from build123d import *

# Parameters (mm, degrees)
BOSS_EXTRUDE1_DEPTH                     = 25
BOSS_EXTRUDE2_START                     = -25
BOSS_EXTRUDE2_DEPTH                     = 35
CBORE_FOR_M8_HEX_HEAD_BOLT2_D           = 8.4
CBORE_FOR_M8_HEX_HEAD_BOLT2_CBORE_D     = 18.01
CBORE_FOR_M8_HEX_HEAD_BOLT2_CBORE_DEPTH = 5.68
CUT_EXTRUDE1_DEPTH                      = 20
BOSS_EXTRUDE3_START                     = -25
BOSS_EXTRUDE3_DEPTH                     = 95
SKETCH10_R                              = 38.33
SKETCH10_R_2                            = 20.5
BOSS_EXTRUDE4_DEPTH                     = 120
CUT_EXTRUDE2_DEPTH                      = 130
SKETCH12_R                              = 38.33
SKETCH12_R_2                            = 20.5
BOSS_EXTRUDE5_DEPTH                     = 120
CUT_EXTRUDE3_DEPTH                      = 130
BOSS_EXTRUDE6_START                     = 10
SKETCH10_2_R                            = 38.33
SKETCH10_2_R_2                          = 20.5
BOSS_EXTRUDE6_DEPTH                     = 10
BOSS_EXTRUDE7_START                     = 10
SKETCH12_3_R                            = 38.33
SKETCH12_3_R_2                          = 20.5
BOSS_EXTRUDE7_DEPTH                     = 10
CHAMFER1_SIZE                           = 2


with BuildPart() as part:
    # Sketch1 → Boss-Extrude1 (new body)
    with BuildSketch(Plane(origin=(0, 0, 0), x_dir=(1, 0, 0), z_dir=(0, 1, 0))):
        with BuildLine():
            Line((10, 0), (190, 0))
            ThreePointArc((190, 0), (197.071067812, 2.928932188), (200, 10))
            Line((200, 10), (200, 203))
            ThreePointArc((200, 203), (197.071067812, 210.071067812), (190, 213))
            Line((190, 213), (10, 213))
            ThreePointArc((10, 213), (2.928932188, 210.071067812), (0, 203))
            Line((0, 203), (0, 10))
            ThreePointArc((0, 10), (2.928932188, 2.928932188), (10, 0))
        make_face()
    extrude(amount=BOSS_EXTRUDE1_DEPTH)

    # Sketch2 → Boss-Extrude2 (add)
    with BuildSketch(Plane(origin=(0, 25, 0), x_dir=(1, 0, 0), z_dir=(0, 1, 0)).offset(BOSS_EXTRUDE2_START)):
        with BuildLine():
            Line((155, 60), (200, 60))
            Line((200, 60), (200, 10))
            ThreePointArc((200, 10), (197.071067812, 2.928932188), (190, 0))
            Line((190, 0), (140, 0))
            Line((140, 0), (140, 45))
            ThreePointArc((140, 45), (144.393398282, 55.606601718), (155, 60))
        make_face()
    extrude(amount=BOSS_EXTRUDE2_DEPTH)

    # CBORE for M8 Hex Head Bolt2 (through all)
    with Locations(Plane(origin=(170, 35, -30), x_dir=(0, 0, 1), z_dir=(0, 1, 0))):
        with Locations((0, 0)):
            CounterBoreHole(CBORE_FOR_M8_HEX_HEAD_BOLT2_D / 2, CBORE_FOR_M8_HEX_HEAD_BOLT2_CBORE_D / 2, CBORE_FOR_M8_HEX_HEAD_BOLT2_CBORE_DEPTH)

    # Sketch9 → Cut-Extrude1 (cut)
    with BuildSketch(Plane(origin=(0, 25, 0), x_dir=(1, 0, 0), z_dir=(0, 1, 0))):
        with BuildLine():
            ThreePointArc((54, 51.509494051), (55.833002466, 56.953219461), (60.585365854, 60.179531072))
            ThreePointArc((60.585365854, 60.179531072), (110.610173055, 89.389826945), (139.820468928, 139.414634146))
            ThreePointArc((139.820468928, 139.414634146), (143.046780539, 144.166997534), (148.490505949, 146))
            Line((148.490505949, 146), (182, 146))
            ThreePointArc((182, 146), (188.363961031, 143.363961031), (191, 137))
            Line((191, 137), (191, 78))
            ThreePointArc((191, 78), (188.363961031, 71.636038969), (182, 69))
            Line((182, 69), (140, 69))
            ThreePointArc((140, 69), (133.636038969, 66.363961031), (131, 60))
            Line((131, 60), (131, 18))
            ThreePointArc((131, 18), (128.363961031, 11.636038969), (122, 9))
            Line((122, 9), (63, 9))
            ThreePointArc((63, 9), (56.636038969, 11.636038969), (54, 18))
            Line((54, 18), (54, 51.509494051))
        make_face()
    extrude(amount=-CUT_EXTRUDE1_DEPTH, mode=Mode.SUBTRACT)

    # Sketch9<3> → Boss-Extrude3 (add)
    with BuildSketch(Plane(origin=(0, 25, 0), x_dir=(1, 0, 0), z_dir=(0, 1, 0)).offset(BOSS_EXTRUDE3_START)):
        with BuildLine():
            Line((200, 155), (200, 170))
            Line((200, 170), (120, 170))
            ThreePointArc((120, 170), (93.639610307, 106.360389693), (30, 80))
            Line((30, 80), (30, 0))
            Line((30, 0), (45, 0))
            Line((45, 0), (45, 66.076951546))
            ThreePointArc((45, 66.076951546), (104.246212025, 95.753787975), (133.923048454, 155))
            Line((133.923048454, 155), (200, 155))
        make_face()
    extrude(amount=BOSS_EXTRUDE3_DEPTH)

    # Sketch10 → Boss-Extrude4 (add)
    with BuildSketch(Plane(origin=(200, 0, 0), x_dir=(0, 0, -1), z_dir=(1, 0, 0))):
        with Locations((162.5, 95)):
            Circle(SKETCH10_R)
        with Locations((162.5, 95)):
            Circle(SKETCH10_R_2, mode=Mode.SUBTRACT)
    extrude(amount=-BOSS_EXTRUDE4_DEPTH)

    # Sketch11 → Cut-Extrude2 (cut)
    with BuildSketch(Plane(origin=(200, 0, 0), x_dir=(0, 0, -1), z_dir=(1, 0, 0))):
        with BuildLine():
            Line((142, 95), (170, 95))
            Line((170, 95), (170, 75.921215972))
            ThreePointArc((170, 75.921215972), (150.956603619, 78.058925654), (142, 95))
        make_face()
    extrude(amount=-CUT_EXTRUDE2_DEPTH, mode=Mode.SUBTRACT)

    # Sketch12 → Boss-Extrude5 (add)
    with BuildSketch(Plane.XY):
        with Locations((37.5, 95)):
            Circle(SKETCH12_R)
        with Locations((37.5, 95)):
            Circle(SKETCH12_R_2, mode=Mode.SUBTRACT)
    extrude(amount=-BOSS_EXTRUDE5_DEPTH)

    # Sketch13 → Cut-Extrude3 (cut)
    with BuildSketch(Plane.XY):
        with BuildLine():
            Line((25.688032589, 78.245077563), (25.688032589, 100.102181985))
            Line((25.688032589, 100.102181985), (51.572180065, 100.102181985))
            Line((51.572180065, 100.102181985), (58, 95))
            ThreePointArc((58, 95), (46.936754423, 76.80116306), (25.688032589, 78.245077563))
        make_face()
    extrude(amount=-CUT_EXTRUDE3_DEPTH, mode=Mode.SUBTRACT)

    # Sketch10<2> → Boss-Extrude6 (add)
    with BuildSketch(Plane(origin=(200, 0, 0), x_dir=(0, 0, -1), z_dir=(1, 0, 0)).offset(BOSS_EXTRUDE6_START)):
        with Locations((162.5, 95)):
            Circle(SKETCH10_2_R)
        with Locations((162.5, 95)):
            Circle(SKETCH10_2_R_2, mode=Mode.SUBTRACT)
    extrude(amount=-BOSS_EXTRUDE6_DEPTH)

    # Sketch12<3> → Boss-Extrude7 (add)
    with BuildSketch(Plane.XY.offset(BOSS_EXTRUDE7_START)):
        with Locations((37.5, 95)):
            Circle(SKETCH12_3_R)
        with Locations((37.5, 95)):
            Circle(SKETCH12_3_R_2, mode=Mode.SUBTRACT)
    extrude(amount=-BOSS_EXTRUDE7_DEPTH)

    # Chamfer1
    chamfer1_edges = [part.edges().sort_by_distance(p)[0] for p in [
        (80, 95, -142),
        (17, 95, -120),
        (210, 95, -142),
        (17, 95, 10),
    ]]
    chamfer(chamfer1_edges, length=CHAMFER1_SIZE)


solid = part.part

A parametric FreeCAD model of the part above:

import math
import FreeCAD as App
import Part
import Sketcher


def edges_at(feature, points):
    """Names of the edges that pass closest to the given points."""
    edges = feature.Shape.Edges
    near = lambda p: min(range(len(edges)), key=lambda i: edges[i].distToShape(Part.Vertex(*p))[0])
    return sorted({f"Edge{near(p) + 1}" for p in points})

doc = App.newDocument("Part")
body = doc.addObject("PartDesign::Body", "Body")

sketch1 = body.newObject("Sketcher::SketchObject", "Sketch")
sketch1.AttachmentSupport = (doc.getObject("XZ_Plane"), [""])
sketch1.MapMode = "FlatFace"
sketch1.addGeometry([
    Part.LineSegment(App.Vector(10, 0, 0), App.Vector(190, 0, 0)),
    Part.ArcOfCircle(Part.Circle(App.Vector(190, -10, 0), App.Vector(0, 0, 1), 10), math.radians(0), math.radians(90)),
    Part.LineSegment(App.Vector(200, -10, 0), App.Vector(200, -203, 0)),
    Part.ArcOfCircle(Part.Circle(App.Vector(190, -203, 0), App.Vector(0, 0, 1), 10), math.radians(-90), math.radians(0)),
    Part.LineSegment(App.Vector(190, -213, 0), App.Vector(10, -213, 0)),
    Part.ArcOfCircle(Part.Circle(App.Vector(10, -203, 0), App.Vector(0, 0, 1), 10), math.radians(180), math.radians(270)),
    Part.LineSegment(App.Vector(0, -203, 0), App.Vector(0, -10, 0)),
    Part.ArcOfCircle(Part.Circle(App.Vector(10, -10, 0), App.Vector(0, 0, 1), 10), math.radians(90), math.radians(180)),
], False)
sketch1.addConstraint([
    Sketcher.Constraint("Tangent", 0, 2, 1, 2),
    Sketcher.Constraint("Tangent", 1, 1, 2, 1),
    Sketcher.Constraint("Tangent", 2, 2, 3, 2),
    Sketcher.Constraint("Tangent", 3, 1, 4, 1),
    Sketcher.Constraint("Tangent", 4, 2, 5, 2),
    Sketcher.Constraint("Tangent", 5, 1, 6, 1),
    Sketcher.Constraint("Tangent", 6, 2, 7, 2),
    Sketcher.Constraint("Tangent", 7, 1, 0, 1),
    Sketcher.Constraint("Horizontal", 0),
    Sketcher.Constraint("Vertical", 2),
    Sketcher.Constraint("Horizontal", 4),
    Sketcher.Constraint("Vertical", 6),
    Sketcher.Constraint("Equal", 1, 3),
    Sketcher.Constraint("Equal", 3, 5),
    Sketcher.Constraint("Equal", 5, 7),
    Sketcher.Constraint("PointOnObject", 0, 2, -1),
    Sketcher.Constraint("PointOnObject", 5, 1, -2),
    Sketcher.Constraint("Radius", 1, 10.0),
    Sketcher.Constraint("DistanceX", 0, 1, 0, 2, 180.0),
    Sketcher.Constraint("DistanceY", 2, 2, 2, 1, 193.0),
])
pad1 = body.newObject("PartDesign::Pad", "Pad")
pad1.Profile = sketch1
pad1.Length = 25
pad1.Reversed = True

sketch2 = body.newObject("Sketcher::SketchObject", "Sketch001")
sketch2.AttachmentSupport = (doc.getObject("XZ_Plane"), [""])
sketch2.MapMode = "FlatFace"
sketch2.addGeometry([
    Part.LineSegment(App.Vector(200, -60, 0), App.Vector(155, -60, 0)),
    Part.ArcOfCircle(Part.Circle(App.Vector(155, -45, 0), App.Vector(0, 0, 1), 15), math.radians(180), math.radians(270)),
    Part.LineSegment(App.Vector(140, -45, 0), App.Vector(140, 0, 0)),
    Part.LineSegment(App.Vector(140, 0, 0), App.Vector(190, 0, 0)),
    Part.ArcOfCircle(Part.Circle(App.Vector(190, -10, 0), App.Vector(0, 0, 1), 10), math.radians(0), math.radians(90)),
    Part.LineSegment(App.Vector(200, -10, 0), App.Vector(200, -60, 0)),
], False)
sketch2.addConstraint([
    Sketcher.Constraint("Tangent", 0, 2, 1, 2),
    Sketcher.Constraint("Tangent", 1, 1, 2, 1),
    Sketcher.Constraint("Coincident", 2, 2, 3, 1),
    Sketcher.Constraint("Tangent", 3, 2, 4, 2),
    Sketcher.Constraint("Tangent", 4, 1, 5, 1),
    Sketcher.Constraint("Coincident", 5, 2, 0, 1),
    Sketcher.Constraint("Horizontal", 0),
    Sketcher.Constraint("Vertical", 2),
    Sketcher.Constraint("Horizontal", 3),
    Sketcher.Constraint("Vertical", 5),
    Sketcher.Constraint("PointOnObject", 2, 2, -1),
    Sketcher.Constraint("Equal", 0, 2),
    Sketcher.Constraint("Radius", 1, 15.0),
    Sketcher.Constraint("Radius", 4, 10.0),
    Sketcher.Constraint("DistanceX", 0, 2, 0, 1, 45.0),
    Sketcher.Constraint("DistanceX", -1, 1, 1, 3, 155.0),
])
pad2 = body.newObject("PartDesign::Pad", "Pad001")
pad2.Profile = sketch2
pad2.Length = 35
pad2.Reversed = True

sketch3 = body.newObject("Sketcher::SketchObject", "Sketch002")
sketch3.AttachmentSupport = (doc.getObject("XZ_Plane"), [""])
sketch3.MapMode = "FlatFace"
sketch3.AttachmentOffset = App.Placement(App.Vector(0, 0, -35), App.Rotation())
sketch3.addGeometry(Part.Circle(App.Vector(170, -30, 0), App.Vector(0, 0, 1), 4.2), False)
sketch3.addConstraint([
    Sketcher.Constraint("Diameter", 0, 8.4),
    Sketcher.Constraint("DistanceX", -1, 1, 0, 3, 170.0),
    Sketcher.Constraint("DistanceY", 0, 3, -1, 1, 30.0),
])
doc.recompute()
hole = body.newObject("PartDesign::Hole", "Hole")
hole.Profile = sketch3
hole.ThreadType = "None"
hole.Diameter = 8.4
hole.DepthType = "ThroughAll"
hole.HoleCutType = "Counterbore"
hole.HoleCutDiameter = 18.01
hole.HoleCutDepth = 5.68
hole.Reversed = True

sketch4 = body.newObject("Sketcher::SketchObject", "Sketch003")
sketch4.AttachmentSupport = (doc.getObject("XZ_Plane"), [""])
sketch4.MapMode = "FlatFace"
sketch4.AttachmentOffset = App.Placement(App.Vector(0, 0, -25), App.Rotation())
sketch4.addGeometry([
    Part.ArcOfCircle(Part.Circle(App.Vector(63, -51.509494, 0), App.Vector(0, 0, 1), 9), math.radians(-180), math.radians(-105.562697)),
    Part.LineSegment(App.Vector(54, -51.509494, 0), App.Vector(54, -18, 0)),
    Part.ArcOfCircle(Part.Circle(App.Vector(63, -18, 0), App.Vector(0, 0, 1), 9), math.radians(90), math.radians(180)),
    Part.LineSegment(App.Vector(63, -9, 0), App.Vector(122, -9, 0)),
    Part.ArcOfCircle(Part.Circle(App.Vector(122, -18, 0), App.Vector(0, 0, 1), 9), math.radians(0), math.radians(90)),
    Part.LineSegment(App.Vector(131, -18, 0), App.Vector(131, -60, 0)),
    Part.ArcOfCircle(Part.Circle(App.Vector(140, -60, 0), App.Vector(0, 0, 1), 9), math.radians(180), math.radians(270)),
    Part.LineSegment(App.Vector(140, -69, 0), App.Vector(182, -69, 0)),
    Part.ArcOfCircle(Part.Circle(App.Vector(182, -78, 0), App.Vector(0, 0, 1), 9), math.radians(0), math.radians(90)),
    Part.LineSegment(App.Vector(191, -78, 0), App.Vector(191, -137, 0)),
    Part.ArcOfCircle(Part.Circle(App.Vector(182, -137, 0), App.Vector(0, 0, 1), 9), math.radians(-90), math.radians(0)),
    Part.LineSegment(App.Vector(182, -146, 0), App.Vector(148.490506, -146, 0)),
    Part.ArcOfCircle(Part.Circle(App.Vector(148.490506, -137, 0), App.Vector(0, 0, 1), 9), math.radians(-164.437303), math.radians(-90)),
    Part.ArcOfCircle(Part.Circle(App.Vector(30, -170, 0), App.Vector(0, 0, 1), 114), math.radians(15.562697), math.radians(74.437303)),
], False)
sketch4.addConstraint([
    Sketcher.Constraint("Tangent", 0, 1, 1, 1),
    Sketcher.Constraint("Tangent", 1, 2, 2, 2),
    Sketcher.Constraint("Tangent", 2, 1, 3, 1),
    Sketcher.Constraint("Tangent", 3, 2, 4, 2),
    Sketcher.Constraint("Tangent", 4, 1, 5, 1),
    Sketcher.Constraint("Tangent", 5, 2, 6, 1),
    Sketcher.Constraint("Tangent", 6, 2, 7, 1),
    Sketcher.Constraint("Tangent", 7, 2, 8, 2),
    Sketcher.Constraint("Tangent", 8, 1, 9, 1),
    Sketcher.Constraint("Tangent", 9, 2, 10, 2),
    Sketcher.Constraint("Tangent", 10, 1, 11, 1),
    Sketcher.Constraint("Tangent", 11, 2, 12, 2),
    Sketcher.Constraint("Tangent", 12, 1, 13, 1),
    Sketcher.Constraint("Tangent", 13, 2, 0, 2),
    Sketcher.Constraint("Vertical", 1),
    Sketcher.Constraint("Horizontal", 3),
    Sketcher.Constraint("Vertical", 5),
    Sketcher.Constraint("Horizontal", 7),
    Sketcher.Constraint("Vertical", 9),
    Sketcher.Constraint("Horizontal", 11),
    Sketcher.Constraint("Equal", 0, 2),
    Sketcher.Constraint("Equal", 2, 4),
    Sketcher.Constraint("Equal", 4, 6),
    Sketcher.Constraint("Equal", 6, 8),
    Sketcher.Constraint("Equal", 8, 10),
    Sketcher.Constraint("Equal", 10, 12),
    Sketcher.Constraint("Equal", 11, 1),
    Sketcher.Constraint("Equal", 7, 5),
    Sketcher.Constraint("Equal", 3, 9),
    Sketcher.Constraint("Radius", 0, 9.0),
    Sketcher.Constraint("Radius", 13, 114.0),
    Sketcher.Constraint("DistanceX", 3, 1, 3, 2, 59.0),
    Sketcher.Constraint("DistanceX", 7, 1, 7, 2, 42.0),
    Sketcher.Constraint("DistanceX", -1, 1, 0, 3, 63.0),
    Sketcher.Constraint("DistanceY", 2, 3, -1, 1, 18.0),
    Sketcher.Constraint("DistanceX", -1, 1, 13, 3, 30.0),
])
pocket1 = body.newObject("PartDesign::Pocket", "Pocket")
pocket1.Profile = sketch4
pocket1.Length = 20
pocket1.Reversed = True

sketch5 = body.newObject("Sketcher::SketchObject", "Sketch004")
sketch5.AttachmentSupport = (doc.getObject("XZ_Plane"), [""])
sketch5.MapMode = "FlatFace"
sketch5.addGeometry([
    Part.LineSegment(App.Vector(200, -155, 0), App.Vector(200, -170, 0)),
    Part.LineSegment(App.Vector(200, -170, 0), App.Vector(120, -170, 0)),
    Part.ArcOfCircle(Part.Circle(App.Vector(30, -170, 0), App.Vector(0, 0, 1), 90), math.radians(0), math.radians(90)),
    Part.LineSegment(App.Vector(30, -80, 0), App.Vector(30, 0, 0)),
    Part.LineSegment(App.Vector(30, 0, 0), App.Vector(45, 0, 0)),
    Part.LineSegment(App.Vector(45, 0, 0), App.Vector(45, -66.076952, 0)),
    Part.ArcOfCircle(Part.Circle(App.Vector(30, -170, 0), App.Vector(0, 0, 1), 105), math.radians(8.213211), math.radians(81.786789)),
    Part.LineSegment(App.Vector(133.923048, -155, 0), App.Vector(200, -155, 0)),
], False)
sketch5.addConstraint([
    Sketcher.Constraint("Coincident", 0, 2, 1, 1),
    Sketcher.Constraint("Coincident", 1, 2, 2, 1),
    Sketcher.Constraint("Coincident", 2, 2, 3, 1),
    Sketcher.Constraint("Coincident", 3, 2, 4, 1),
    Sketcher.Constraint("Coincident", 4, 2, 5, 1),
    Sketcher.Constraint("Coincident", 5, 2, 6, 2),
    Sketcher.Constraint("Coincident", 6, 1, 7, 1),
    Sketcher.Constraint("Coincident", 7, 2, 0, 1),
    Sketcher.Constraint("Vertical", 0),
    Sketcher.Constraint("Horizontal", 1),
    Sketcher.Constraint("Vertical", 3),
    Sketcher.Constraint("Horizontal", 4),
    Sketcher.Constraint("Vertical", 5),
    Sketcher.Constraint("Horizontal", 7),
    Sketcher.Constraint("Coincident", 6, 3, 2, 3),
    Sketcher.Constraint("PointOnObject", 3, 2, -1),
    Sketcher.Constraint("Horizontal", 6, 3, 0, 2),
    Sketcher.Constraint("Vertical", 6, 3, 2, 2),
    Sketcher.Constraint("Equal", 4, 0),
    Sketcher.Constraint("Equal", 1, 3),
    Sketcher.Constraint("Radius", 2, 90.0),
    Sketcher.Constraint("Radius", 6, 105.0),
    Sketcher.Constraint("DistanceX", 1, 2, 1, 1, 80.0),
    Sketcher.Constraint("DistanceX", 4, 1, 4, 2, 15.0),
    Sketcher.Constraint("DistanceX", -1, 1, 2, 3, 30.0),
])
pad3 = body.newObject("PartDesign::Pad", "Pad002")
pad3.Profile = sketch5
pad3.Length = 95
pad3.Reversed = True

sketch6 = body.newObject("Sketcher::SketchObject", "Sketch005")
sketch6.AttachmentSupport = (doc.getObject("YZ_Plane"), [""])
sketch6.MapMode = "FlatFace"
sketch6.AttachmentOffset = App.Placement(App.Vector(0, 0, 200), App.Rotation())
sketch6.addGeometry([
    Part.Circle(App.Vector(95, -162.5, 0), App.Vector(0, 0, 1), 38.33),
    Part.Circle(App.Vector(95, -162.5, 0), App.Vector(0, 0, 1), 20.5),
], False)
sketch6.addConstraint([
    Sketcher.Constraint("Coincident", 1, 3, 0, 3),
    Sketcher.Constraint("Diameter", 1, 41.0),
    Sketcher.Constraint("Diameter", 0, 76.66),
    Sketcher.Constraint("DistanceX", -1, 1, 0, 3, 95.0),
    Sketcher.Constraint("DistanceY", 0, 3, -1, 1, 162.5),
])
pad4 = body.newObject("PartDesign::Pad", "Pad003")
pad4.Profile = sketch6
pad4.Length = 120
pad4.Reversed = True

sketch7 = body.newObject("Sketcher::SketchObject", "Sketch006")
sketch7.AttachmentSupport = (doc.getObject("YZ_Plane"), [""])
sketch7.MapMode = "FlatFace"
sketch7.AttachmentOffset = App.Placement(App.Vector(0, 0, 200), App.Rotation())
sketch7.addGeometry([
    Part.LineSegment(App.Vector(95, -170, 0), App.Vector(95, -142, 0)),
    Part.ArcOfCircle(Part.Circle(App.Vector(95, -162.5, 0), App.Vector(0, 0, 1), 20.5), math.radians(90), math.radians(201.460128)),
    Part.LineSegment(App.Vector(75.921216, -170, 0), App.Vector(95, -170, 0)),
], False)
sketch7.addConstraint([
    Sketcher.Constraint("Coincident", 0, 2, 1, 1),
    Sketcher.Constraint("Coincident", 1, 2, 2, 1),
    Sketcher.Constraint("Coincident", 2, 2, 0, 1),
    Sketcher.Constraint("Vertical", 0),
    Sketcher.Constraint("Horizontal", 2),
    Sketcher.Constraint("Vertical", 1, 3, 0, 2),
    Sketcher.Constraint("Radius", 1, 20.5),
    Sketcher.Constraint("DistanceY", 0, 1, 0, 2, 28.0),
    Sketcher.Constraint("DistanceX", -1, 1, 1, 3, 95.0),
    Sketcher.Constraint("DistanceY", 0, 2, -1, 1, 142.0),
])
pocket2 = body.newObject("PartDesign::Pocket", "Pocket001")
pocket2.Profile = sketch7
pocket2.Length = 130

sketch8 = body.newObject("Sketcher::SketchObject", "Sketch007")
sketch8.AttachmentSupport = (doc.getObject("XY_Plane"), [""])
sketch8.MapMode = "FlatFace"
sketch8.addGeometry([
    Part.Circle(App.Vector(37.5, 95, 0), App.Vector(0, 0, 1), 38.33),
    Part.Circle(App.Vector(37.5, 95, 0), App.Vector(0, 0, 1), 20.5),
], False)
sketch8.addConstraint([
    Sketcher.Constraint("Coincident", 1, 3, 0, 3),
    Sketcher.Constraint("Diameter", 1, 41.0),
    Sketcher.Constraint("Diameter", 0, 76.66),
    Sketcher.Constraint("DistanceY", -1, 1, 0, 3, 95.0),
    Sketcher.Constraint("DistanceX", -1, 1, 0, 3, 37.5),
])
pad5 = body.newObject("PartDesign::Pad", "Pad004")
pad5.Profile = sketch8
pad5.Length = 120
pad5.Reversed = True

sketch9 = body.newObject("Sketcher::SketchObject", "Sketch008")
sketch9.AttachmentSupport = (doc.getObject("XY_Plane"), [""])
sketch9.MapMode = "FlatFace"
sketch9.addGeometry([
    Part.LineSegment(App.Vector(25.688033, 100.102182, 0), App.Vector(25.688033, 78.245078, 0)),
    Part.ArcOfCircle(Part.Circle(App.Vector(37.5, 95, 0), App.Vector(0, 0, 1), 20.5), math.radians(-125.183259), math.radians(0)),
    Part.LineSegment(App.Vector(58, 95, 0), App.Vector(51.57218, 100.102182, 0)),
    Part.LineSegment(App.Vector(51.57218, 100.102182, 0), App.Vector(25.688033, 100.102182, 0)),
], False)
sketch9.addConstraint([
    Sketcher.Constraint("Coincident", 0, 2, 1, 1),
    Sketcher.Constraint("Coincident", 1, 2, 2, 1),
    Sketcher.Constraint("Coincident", 2, 2, 3, 1),
    Sketcher.Constraint("Coincident", 3, 2, 0, 1),
    Sketcher.Constraint("Vertical", 0),
    Sketcher.Constraint("Horizontal", 3),
    Sketcher.Constraint("Radius", 1, 20.5),
    Sketcher.Constraint("DistanceY", -1, 1, 1, 3, 95.0),
    Sketcher.Constraint("DistanceX", -1, 1, 1, 2, 58.0),
    Sketcher.Constraint("DistanceY", -1, 1, 1, 2, 95.0),
    Sketcher.Constraint("Distance", 2, 8.206652),
    Sketcher.Constraint("DistanceX", 3, 2, 3, 1, 25.884147),
    Sketcher.Constraint("DistanceY", 0, 2, 0, 1, 21.857104),
])
pocket3 = body.newObject("PartDesign::Pocket", "Pocket002")
pocket3.Profile = sketch9
pocket3.Length = 130

sketch10 = body.newObject("Sketcher::SketchObject", "Sketch009")
sketch10.AttachmentSupport = (doc.getObject("YZ_Plane"), [""])
sketch10.MapMode = "FlatFace"
sketch10.AttachmentOffset = App.Placement(App.Vector(0, 0, 210), App.Rotation())
sketch10.addGeometry([
    Part.Circle(App.Vector(95, -162.5, 0), App.Vector(0, 0, 1), 38.33),
    Part.Circle(App.Vector(95, -162.5, 0), App.Vector(0, 0, 1), 20.5),
], False)
sketch10.addConstraint([
    Sketcher.Constraint("Coincident", 1, 3, 0, 3),
    Sketcher.Constraint("Diameter", 1, 41.0),
    Sketcher.Constraint("Diameter", 0, 76.66),
    Sketcher.Constraint("DistanceX", -1, 1, 0, 3, 95.0),
    Sketcher.Constraint("DistanceY", 0, 3, -1, 1, 162.5),
])
pad6 = body.newObject("PartDesign::Pad", "Pad005")
pad6.Profile = sketch10
pad6.Length = 10
pad6.Reversed = True

sketch11 = body.newObject("Sketcher::SketchObject", "Sketch010")
sketch11.AttachmentSupport = (doc.getObject("XY_Plane"), [""])
sketch11.MapMode = "FlatFace"
sketch11.AttachmentOffset = App.Placement(App.Vector(0, 0, 10), App.Rotation())
sketch11.addGeometry([
    Part.Circle(App.Vector(37.5, 95, 0), App.Vector(0, 0, 1), 38.33),
    Part.Circle(App.Vector(37.5, 95, 0), App.Vector(0, 0, 1), 20.5),
], False)
sketch11.addConstraint([
    Sketcher.Constraint("Coincident", 1, 3, 0, 3),
    Sketcher.Constraint("Diameter", 1, 41.0),
    Sketcher.Constraint("Diameter", 0, 76.66),
    Sketcher.Constraint("DistanceY", -1, 1, 0, 3, 95.0),
    Sketcher.Constraint("DistanceX", -1, 1, 0, 3, 37.5),
])
pad7 = body.newObject("PartDesign::Pad", "Pad006")
pad7.Profile = sketch11
pad7.Length = 10
pad7.Reversed = True
doc.recompute()

chamfer = body.newObject("PartDesign::Chamfer", "Chamfer")
chamfer.Base = (pad7, edges_at(pad7, [
    (80, 95, -142),
    (17, 95, -120),
    (210, 95, -142),
    (17, 95, 10),
]))
chamfer.Size = 2

doc.recompute()
